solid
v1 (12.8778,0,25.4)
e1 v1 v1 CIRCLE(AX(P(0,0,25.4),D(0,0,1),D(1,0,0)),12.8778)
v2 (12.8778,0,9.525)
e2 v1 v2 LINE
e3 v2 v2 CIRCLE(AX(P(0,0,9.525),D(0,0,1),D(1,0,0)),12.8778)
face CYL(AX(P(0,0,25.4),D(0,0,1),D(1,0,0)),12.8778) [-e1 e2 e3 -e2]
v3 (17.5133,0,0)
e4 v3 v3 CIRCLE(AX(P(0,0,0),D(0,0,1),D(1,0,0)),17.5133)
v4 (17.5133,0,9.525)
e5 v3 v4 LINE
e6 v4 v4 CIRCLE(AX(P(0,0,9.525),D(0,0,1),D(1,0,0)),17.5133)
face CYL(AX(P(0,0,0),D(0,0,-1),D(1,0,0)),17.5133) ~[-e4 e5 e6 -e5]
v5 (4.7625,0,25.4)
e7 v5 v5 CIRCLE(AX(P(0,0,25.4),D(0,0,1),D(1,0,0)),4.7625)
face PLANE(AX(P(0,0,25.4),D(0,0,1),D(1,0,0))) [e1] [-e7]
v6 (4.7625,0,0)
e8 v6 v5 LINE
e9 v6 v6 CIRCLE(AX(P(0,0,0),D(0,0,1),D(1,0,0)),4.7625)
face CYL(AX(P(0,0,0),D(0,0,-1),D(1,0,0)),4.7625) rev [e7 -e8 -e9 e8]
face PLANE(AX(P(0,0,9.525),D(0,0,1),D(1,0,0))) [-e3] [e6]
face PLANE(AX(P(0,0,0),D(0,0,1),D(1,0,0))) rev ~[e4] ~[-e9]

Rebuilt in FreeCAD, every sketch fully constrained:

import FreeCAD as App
import Part
import Sketcher
from FreeCAD import Vector
Q = App.Units.Quantity

doc = App.newDocument("Part")
body = doc.addObject("PartDesign::Body", "Body")

sketch1 = doc.addObject("Sketcher::SketchObject", "Sketch")
body.addObject(sketch1)
sketch1.AttachmentSupport = (doc.XY_Plane, [""])
sketch1.MapMode = "FlatFace"
sketch1.addGeometry([
    Part.Circle(Vector(0, 0, 0), Vector(0, 0, 1), 17.5),
    Part.Circle(Vector(0, 0, 0), Vector(0, 0, 1), 4.8),
], False)
sketch1.addConstraint([
    Sketcher.Constraint("Coincident", 0, 3, -1, 1),
    Sketcher.Constraint("Coincident", 1, 3, -1, 1),
    Sketcher.Constraint("Diameter", 0, Q("1.379 in")),
    Sketcher.Constraint("Diameter", 1, Q("0.375 in")),
])
pad1 = doc.addObject("PartDesign::Pad", "Pad")
body.addObject(pad1)
pad1.Profile = sketch1
pad1.Length = Q("1 in")

sketch2 = doc.addObject("Sketcher::SketchObject", "Sketch001")
body.addObject(sketch2)
sketch2.AttachmentSupport = (doc.XY_Plane, [""])
sketch2.MapMode = "FlatFace"
sketch2.AttachmentOffset = App.Placement(Vector(0, 0, 1 * 25.4), App.Rotation())
sketch2.addGeometry([
    Part.Circle(Vector(0, 0, 0), Vector(0, 0, 1), 18),
    Part.Circle(Vector(0, 0, 0), Vector(0, 0, 1), 13),
], False)
sketch2.addConstraint([
    Sketcher.Constraint("Coincident", 0, 3, -1, 1),
    Sketcher.Constraint("Coincident", 1, 3, -1, 1),
    Sketcher.Constraint("Diameter", 1, Q("1.014 in")),
    Sketcher.Constraint("Diameter", 0, Q("1.379 in")),
])
pocket1 = doc.addObject("PartDesign::Pocket", "Pocket")
body.addObject(pocket1)
pocket1.Profile = sketch2
pocket1.Length = Q("0.625 in")

doc.recompute()
